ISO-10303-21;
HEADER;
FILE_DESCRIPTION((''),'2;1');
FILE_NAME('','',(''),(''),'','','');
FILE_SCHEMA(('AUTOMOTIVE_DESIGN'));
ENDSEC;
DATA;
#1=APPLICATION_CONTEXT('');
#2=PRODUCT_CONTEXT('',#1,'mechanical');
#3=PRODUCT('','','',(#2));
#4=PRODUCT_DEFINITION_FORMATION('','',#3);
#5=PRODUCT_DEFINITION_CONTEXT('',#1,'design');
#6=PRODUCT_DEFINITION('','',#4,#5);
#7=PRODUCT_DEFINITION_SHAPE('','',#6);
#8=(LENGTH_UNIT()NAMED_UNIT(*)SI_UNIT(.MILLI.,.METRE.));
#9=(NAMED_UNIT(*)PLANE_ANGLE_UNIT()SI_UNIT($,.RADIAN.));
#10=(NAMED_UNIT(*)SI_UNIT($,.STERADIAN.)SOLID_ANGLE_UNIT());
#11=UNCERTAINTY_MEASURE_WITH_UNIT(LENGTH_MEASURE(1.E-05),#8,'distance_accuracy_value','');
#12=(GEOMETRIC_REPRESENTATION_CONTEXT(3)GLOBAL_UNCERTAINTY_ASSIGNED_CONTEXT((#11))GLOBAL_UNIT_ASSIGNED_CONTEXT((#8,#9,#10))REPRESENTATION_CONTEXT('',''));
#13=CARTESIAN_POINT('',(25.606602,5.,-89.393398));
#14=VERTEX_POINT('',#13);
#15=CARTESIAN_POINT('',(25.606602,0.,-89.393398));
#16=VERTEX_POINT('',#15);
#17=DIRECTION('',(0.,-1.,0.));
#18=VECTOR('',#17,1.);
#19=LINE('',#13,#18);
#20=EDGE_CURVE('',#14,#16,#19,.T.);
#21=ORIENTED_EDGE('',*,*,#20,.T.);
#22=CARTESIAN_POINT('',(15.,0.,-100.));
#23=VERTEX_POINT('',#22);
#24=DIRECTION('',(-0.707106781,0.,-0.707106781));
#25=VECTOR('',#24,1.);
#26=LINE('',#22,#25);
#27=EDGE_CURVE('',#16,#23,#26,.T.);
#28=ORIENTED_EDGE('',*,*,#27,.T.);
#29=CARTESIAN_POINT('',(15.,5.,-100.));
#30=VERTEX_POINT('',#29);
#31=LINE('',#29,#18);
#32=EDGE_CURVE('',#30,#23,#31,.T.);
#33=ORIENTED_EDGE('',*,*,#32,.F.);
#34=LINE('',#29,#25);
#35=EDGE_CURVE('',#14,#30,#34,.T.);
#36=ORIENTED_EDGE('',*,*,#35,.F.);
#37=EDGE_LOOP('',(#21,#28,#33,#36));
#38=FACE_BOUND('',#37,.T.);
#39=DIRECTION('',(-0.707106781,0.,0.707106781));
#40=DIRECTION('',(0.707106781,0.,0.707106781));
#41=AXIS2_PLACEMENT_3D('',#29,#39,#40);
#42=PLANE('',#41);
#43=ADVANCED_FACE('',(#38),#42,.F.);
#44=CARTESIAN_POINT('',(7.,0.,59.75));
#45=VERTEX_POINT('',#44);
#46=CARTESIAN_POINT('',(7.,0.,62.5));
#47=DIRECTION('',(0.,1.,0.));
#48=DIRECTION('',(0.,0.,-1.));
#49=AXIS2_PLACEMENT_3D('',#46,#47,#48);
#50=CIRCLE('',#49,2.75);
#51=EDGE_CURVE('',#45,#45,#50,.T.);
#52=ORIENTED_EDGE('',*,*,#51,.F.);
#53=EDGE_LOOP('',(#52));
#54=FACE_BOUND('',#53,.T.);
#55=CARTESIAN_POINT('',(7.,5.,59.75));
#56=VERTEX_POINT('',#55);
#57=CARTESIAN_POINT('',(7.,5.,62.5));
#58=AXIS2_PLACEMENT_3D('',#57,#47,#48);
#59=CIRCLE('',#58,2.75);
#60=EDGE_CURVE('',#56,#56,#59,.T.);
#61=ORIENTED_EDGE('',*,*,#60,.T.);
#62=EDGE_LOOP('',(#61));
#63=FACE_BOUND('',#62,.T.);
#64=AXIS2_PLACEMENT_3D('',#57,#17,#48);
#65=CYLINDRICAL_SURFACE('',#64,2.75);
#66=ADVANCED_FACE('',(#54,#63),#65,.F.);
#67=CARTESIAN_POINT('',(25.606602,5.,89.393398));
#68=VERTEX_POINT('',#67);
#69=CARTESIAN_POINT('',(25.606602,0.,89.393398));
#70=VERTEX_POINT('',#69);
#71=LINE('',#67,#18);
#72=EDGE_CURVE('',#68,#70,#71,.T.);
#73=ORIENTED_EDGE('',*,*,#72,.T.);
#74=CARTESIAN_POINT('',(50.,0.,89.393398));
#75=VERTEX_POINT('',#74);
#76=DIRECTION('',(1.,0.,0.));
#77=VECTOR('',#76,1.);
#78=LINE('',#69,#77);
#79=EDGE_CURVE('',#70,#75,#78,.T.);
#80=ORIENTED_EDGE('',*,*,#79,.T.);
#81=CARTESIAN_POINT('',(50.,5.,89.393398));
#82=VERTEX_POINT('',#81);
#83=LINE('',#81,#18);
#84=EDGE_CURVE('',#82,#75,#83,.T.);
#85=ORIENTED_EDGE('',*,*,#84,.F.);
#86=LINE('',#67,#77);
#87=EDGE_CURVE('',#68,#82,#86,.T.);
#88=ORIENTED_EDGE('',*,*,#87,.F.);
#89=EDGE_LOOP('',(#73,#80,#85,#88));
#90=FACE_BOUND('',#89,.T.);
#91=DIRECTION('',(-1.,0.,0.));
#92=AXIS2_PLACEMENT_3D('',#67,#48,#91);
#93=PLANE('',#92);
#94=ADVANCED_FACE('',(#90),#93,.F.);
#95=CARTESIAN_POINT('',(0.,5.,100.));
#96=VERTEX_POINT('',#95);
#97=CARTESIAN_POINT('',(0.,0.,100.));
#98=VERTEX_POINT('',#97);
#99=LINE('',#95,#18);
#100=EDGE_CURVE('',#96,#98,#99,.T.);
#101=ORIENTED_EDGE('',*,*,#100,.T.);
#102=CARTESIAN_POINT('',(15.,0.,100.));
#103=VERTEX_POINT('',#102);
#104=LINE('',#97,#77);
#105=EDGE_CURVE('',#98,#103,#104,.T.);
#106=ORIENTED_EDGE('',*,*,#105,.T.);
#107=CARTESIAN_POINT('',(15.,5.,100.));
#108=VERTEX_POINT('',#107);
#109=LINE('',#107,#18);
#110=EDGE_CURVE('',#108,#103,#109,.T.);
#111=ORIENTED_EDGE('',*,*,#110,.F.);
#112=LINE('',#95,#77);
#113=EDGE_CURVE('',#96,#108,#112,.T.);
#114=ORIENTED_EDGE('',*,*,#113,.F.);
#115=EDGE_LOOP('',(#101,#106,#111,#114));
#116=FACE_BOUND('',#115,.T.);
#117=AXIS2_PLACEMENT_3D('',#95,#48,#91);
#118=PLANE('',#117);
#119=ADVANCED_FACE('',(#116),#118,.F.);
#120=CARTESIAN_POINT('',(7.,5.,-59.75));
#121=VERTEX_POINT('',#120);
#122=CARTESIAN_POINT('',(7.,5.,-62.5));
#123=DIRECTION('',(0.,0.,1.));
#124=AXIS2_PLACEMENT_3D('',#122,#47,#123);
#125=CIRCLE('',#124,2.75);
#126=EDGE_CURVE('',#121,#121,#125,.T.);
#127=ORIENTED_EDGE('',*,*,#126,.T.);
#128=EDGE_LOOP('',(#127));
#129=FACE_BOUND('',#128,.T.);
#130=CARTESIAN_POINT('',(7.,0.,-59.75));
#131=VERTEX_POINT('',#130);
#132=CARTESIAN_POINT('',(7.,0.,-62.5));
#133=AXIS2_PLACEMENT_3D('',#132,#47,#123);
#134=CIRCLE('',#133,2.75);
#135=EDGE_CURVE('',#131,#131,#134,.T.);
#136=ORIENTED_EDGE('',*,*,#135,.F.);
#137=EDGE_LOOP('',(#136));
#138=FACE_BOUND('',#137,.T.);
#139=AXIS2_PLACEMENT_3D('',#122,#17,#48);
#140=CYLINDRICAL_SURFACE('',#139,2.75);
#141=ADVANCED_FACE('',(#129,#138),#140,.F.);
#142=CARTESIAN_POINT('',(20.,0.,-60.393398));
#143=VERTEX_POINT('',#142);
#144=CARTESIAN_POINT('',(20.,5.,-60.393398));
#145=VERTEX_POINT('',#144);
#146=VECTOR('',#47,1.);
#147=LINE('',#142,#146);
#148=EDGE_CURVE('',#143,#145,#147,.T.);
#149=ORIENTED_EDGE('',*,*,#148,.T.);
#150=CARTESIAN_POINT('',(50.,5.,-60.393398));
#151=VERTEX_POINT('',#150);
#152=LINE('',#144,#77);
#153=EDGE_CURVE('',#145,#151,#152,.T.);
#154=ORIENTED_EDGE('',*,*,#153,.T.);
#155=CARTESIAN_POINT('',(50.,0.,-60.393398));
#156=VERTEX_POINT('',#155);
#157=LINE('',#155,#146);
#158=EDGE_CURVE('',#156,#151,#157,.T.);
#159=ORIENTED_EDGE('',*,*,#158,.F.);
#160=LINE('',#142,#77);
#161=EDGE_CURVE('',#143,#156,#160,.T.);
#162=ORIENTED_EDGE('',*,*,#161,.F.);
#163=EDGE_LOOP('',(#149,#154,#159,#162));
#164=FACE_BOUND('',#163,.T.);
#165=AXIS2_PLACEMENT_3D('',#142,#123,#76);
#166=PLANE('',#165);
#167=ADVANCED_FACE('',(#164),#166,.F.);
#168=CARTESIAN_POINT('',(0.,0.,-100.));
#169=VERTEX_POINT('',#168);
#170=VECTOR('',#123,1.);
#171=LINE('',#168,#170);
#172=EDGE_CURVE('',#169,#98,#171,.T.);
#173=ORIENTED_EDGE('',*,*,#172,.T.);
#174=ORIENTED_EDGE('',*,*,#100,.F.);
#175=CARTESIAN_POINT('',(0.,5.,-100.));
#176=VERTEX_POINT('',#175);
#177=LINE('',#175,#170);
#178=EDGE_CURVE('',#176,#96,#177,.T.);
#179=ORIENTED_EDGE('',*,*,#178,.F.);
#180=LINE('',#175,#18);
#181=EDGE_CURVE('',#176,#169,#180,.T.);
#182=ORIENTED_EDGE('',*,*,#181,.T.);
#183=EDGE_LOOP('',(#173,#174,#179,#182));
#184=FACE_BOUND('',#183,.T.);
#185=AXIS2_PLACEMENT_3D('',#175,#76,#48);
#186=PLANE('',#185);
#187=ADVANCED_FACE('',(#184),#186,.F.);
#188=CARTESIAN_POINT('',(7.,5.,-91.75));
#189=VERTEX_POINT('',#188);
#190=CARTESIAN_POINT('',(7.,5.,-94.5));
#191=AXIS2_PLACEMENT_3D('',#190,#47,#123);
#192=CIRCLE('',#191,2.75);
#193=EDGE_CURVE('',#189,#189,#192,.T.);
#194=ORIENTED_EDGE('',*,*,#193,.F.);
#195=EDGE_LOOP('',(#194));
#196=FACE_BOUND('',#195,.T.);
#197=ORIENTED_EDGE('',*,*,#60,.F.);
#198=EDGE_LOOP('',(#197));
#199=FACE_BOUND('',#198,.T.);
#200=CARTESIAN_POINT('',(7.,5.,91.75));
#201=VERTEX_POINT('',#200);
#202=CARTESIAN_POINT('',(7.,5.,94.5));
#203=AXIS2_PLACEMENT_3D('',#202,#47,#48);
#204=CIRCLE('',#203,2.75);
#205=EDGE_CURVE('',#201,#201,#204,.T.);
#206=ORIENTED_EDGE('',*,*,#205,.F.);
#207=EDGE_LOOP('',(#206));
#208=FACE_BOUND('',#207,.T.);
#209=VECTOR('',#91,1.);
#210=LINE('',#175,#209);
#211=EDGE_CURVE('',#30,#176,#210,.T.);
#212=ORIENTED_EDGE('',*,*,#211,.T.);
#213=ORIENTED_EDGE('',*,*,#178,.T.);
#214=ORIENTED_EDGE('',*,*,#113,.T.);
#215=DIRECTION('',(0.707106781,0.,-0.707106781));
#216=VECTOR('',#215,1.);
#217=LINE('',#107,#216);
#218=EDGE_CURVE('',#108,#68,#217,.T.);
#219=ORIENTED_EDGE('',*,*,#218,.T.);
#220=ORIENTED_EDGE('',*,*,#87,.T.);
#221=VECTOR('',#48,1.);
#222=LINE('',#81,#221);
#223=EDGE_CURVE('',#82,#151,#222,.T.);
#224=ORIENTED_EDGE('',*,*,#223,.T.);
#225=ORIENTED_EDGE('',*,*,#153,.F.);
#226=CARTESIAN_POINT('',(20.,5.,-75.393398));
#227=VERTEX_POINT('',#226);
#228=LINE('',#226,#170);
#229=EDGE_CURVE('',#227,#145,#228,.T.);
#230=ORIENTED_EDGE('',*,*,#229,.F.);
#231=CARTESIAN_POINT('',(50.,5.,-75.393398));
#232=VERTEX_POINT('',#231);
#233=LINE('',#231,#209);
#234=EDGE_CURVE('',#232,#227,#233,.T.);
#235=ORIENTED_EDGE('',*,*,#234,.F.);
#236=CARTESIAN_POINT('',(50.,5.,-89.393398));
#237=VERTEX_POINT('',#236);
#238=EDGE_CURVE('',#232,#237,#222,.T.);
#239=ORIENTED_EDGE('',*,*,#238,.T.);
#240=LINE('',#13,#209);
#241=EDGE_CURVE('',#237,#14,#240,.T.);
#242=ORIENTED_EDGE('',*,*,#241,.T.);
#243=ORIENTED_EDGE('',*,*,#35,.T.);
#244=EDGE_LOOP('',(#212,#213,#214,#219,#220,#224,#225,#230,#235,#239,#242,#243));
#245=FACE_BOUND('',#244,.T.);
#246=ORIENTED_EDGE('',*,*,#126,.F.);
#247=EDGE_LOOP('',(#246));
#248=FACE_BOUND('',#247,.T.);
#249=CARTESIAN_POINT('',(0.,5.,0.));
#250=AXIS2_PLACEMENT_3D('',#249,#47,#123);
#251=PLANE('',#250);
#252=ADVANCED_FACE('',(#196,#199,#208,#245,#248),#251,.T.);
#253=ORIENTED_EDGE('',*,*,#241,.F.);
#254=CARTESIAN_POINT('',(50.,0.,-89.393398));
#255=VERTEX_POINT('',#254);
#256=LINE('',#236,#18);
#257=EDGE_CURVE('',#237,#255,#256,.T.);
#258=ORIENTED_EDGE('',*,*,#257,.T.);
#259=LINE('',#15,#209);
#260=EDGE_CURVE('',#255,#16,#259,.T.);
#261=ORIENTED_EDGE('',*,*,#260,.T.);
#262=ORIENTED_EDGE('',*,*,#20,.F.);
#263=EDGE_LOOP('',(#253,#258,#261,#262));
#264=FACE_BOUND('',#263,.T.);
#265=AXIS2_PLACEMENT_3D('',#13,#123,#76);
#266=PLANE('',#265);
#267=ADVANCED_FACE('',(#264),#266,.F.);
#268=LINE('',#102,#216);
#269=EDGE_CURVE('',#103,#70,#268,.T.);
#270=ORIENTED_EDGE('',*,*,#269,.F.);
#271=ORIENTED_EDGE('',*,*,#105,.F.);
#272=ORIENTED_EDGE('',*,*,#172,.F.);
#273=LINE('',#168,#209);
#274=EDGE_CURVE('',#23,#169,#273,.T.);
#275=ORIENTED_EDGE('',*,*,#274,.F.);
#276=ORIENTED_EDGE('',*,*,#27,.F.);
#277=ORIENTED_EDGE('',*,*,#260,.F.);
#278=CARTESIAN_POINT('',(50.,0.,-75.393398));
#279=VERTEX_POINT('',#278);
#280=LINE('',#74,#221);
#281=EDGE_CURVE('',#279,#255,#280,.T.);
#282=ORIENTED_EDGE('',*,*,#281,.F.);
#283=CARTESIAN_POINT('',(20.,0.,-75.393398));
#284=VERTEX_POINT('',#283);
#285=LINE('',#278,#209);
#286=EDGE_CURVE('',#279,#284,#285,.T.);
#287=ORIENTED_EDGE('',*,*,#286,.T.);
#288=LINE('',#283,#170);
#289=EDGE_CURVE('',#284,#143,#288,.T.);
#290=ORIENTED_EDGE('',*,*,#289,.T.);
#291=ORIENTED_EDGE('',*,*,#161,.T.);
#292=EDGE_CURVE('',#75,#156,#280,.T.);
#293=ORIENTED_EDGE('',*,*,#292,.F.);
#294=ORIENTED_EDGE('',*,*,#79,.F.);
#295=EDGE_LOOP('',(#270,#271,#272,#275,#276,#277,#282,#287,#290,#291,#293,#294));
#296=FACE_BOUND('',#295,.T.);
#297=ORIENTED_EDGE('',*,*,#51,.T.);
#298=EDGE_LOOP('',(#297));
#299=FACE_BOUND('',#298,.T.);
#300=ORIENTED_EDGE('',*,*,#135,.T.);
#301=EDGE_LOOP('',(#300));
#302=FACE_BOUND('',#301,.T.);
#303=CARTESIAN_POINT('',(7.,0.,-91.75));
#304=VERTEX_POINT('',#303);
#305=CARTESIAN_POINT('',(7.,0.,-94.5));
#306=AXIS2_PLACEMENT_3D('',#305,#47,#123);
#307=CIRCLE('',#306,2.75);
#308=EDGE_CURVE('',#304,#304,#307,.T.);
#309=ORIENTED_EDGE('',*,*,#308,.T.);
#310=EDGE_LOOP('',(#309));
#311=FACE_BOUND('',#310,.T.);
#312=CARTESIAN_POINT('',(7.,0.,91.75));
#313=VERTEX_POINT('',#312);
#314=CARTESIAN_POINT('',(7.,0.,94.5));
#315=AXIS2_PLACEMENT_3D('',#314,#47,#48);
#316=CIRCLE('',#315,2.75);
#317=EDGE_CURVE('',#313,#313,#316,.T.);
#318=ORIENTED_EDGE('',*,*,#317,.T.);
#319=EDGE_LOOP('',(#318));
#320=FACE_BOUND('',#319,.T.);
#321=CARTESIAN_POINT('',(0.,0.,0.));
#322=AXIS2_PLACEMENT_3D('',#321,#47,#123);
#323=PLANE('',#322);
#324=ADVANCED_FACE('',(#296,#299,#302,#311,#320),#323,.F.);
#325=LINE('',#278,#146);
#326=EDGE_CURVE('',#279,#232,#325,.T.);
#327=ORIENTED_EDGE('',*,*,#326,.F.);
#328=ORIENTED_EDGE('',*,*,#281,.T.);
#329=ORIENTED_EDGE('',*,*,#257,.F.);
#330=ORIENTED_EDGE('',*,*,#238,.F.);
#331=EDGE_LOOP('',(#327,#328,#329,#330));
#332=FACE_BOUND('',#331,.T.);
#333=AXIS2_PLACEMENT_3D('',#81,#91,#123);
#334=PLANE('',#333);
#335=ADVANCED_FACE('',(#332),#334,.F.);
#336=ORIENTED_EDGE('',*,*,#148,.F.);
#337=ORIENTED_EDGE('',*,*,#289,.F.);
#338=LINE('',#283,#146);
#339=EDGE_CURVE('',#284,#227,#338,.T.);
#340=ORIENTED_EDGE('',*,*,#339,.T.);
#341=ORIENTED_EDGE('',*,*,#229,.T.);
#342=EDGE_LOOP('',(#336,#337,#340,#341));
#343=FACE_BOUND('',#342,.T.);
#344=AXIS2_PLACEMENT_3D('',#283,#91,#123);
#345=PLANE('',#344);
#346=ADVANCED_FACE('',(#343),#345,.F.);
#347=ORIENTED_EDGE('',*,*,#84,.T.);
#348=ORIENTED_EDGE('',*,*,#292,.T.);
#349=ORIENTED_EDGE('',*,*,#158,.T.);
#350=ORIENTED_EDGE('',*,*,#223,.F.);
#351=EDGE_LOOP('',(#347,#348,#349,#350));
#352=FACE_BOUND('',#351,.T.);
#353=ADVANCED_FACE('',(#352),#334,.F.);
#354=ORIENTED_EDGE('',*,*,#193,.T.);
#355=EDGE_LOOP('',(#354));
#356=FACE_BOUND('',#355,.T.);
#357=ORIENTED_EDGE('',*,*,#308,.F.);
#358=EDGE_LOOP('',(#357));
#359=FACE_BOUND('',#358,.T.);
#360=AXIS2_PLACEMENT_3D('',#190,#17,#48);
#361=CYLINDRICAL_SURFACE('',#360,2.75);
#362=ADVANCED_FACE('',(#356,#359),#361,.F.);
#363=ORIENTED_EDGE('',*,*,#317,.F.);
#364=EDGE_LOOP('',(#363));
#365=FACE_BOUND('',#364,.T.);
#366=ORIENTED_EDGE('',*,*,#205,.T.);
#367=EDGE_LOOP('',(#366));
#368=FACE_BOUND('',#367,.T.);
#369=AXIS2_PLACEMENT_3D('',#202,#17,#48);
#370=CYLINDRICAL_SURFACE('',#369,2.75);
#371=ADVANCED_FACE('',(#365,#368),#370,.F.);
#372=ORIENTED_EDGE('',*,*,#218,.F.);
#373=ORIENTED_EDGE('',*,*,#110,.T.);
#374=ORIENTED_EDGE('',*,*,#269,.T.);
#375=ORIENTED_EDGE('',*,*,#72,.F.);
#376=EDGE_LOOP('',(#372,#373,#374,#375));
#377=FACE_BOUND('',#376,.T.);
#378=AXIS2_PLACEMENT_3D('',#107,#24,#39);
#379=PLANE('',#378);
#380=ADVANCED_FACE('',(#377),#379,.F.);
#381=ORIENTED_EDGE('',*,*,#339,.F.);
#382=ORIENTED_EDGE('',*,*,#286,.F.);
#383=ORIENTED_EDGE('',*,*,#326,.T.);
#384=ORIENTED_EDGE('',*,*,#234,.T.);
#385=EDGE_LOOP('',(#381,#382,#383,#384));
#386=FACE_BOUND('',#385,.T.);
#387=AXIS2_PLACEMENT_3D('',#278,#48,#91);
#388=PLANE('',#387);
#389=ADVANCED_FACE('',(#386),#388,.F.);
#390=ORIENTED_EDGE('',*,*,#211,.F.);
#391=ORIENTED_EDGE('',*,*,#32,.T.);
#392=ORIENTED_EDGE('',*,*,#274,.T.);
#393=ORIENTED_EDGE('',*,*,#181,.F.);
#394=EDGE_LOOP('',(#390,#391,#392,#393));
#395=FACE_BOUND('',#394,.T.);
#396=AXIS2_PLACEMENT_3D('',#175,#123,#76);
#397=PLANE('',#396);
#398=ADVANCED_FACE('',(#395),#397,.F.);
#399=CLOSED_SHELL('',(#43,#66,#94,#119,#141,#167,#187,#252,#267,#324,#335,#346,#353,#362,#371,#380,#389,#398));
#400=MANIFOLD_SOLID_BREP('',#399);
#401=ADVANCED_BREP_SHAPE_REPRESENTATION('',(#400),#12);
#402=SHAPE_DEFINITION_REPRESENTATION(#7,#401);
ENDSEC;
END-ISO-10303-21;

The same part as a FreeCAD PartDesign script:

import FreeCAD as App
import Part
import Sketcher
from FreeCAD import Vector


def add_polygon(sketch, points):
    """Adds a closed chain of lines whose ends are joined by coincident constraints."""
    first, n = sketch.GeometryCount, len(points)
    for a, b in zip(points, points[1:] + points[:1]):
        sketch.addGeometry(Part.LineSegment(App.Vector(*a, 0), App.Vector(*b, 0)), False)
    for i in range(n):
        sketch.addConstraint(Sketcher.Constraint("Coincident", first + i, 2, first + (i + 1) % n, 1))

doc = App.newDocument("Part")
body = doc.addObject("PartDesign::Body", "Body")

sketch1 = doc.addObject("Sketcher::SketchObject", "Sketch")
body.addObject(sketch1)
sketch1.AttachmentSupport = (doc.XZ_Plane, [""])
sketch1.MapMode = "FlatFace"
add_polygon(sketch1, [(15, -100), (0, -100), (0, 100), (15, 100), (25.606602, 89.393398), (50, 89.393398), (50, -89.393398), (25.606602, -89.393398)])
sketch1.addGeometry(Part.Circle(Vector(7, 94.5, 0), Vector(0, 0, 1), 2.75), False)
sketch1.addGeometry(Part.Circle(Vector(7, 62.5, 0), Vector(0, 0, 1), 2.75), False)
sketch1.addGeometry(Part.Circle(Vector(7, -62.5, 0), Vector(0, 0, 1), 2.75), False)
sketch1.addGeometry(Part.Circle(Vector(7, -94.5, 0), Vector(0, 0, 1), 2.75), False)
sketch1.addConstraint(Sketcher.Constraint("Horizontal", 0))
sketch1.addConstraint(Sketcher.Constraint("Vertical", 1))
sketch1.addConstraint(Sketcher.Constraint("Horizontal", 2))
sketch1.addConstraint(Sketcher.Constraint("Horizontal", 4))
sketch1.addConstraint(Sketcher.Constraint("Vertical", 5))
sketch1.addConstraint(Sketcher.Constraint("Horizontal", 6))
sketch1.addConstraint(Sketcher.Constraint("Equal", 8, 9))
sketch1.addConstraint(Sketcher.Constraint("Equal", 9, 10))
sketch1.addConstraint(Sketcher.Constraint("Equal", 10, 11))
sketch1.addConstraint(Sketcher.Constraint("Symmetric", 0, 2, 1, 2, -1, 1))
sketch1.addConstraint(Sketcher.Constraint("Symmetric", 9, 3, 10, 3, -1))
sketch1.addConstraint(Sketcher.Constraint("Symmetric", 8, 3, 11, 3, -1))
sketch1.addConstraint(Sketcher.Constraint("Symmetric", 3, 2, 6, 2, -1))
sketch1.addConstraint(Sketcher.Constraint("Perpendicular", 3, 7))
sketch1.addConstraint(Sketcher.Constraint("Vertical", 8, 3, 9, 3))
sketch1.addConstraint(Sketcher.Constraint("Vertical", 2, 2, 7, 2))
sketch1.addConstraint(Sketcher.Constraint("Diameter", 8, 5.5))
sketch1.addConstraint(Sketcher.Constraint("DistanceX", 0, 2, 0, 1, 15.0))
sketch1.addConstraint(Sketcher.Constraint("DistanceY", 1, 1, 1, 2, 200.0))
sketch1.addConstraint(Sketcher.Constraint("Distance", 3, 15.0))
sketch1.addConstraint(Sketcher.Constraint("DistanceX", -1, 1, 8, 3, 7.0))
sketch1.addConstraint(Sketcher.Constraint("DistanceX", -1, 1, 4, 2, 50.0))
sketch1.addConstraint(Sketcher.Constraint("DistanceY", 9, 3, 8, 3, 32.0))
sketch1.addConstraint(Sketcher.Constraint("DistanceY", 10, 3, 9, 3, 125.0))
pad1 = doc.addObject("PartDesign::Pad", "Pad")
body.addObject(pad1)
pad1.Profile = sketch1
pad1.Length = 5
pad1.Reversed = True

sketch2 = doc.addObject("Sketcher::SketchObject", "Sketch001")
body.addObject(sketch2)
sketch2.AttachmentSupport = (doc.XZ_Plane, [""])
sketch2.MapMode = "FlatFace"
sketch2.AttachmentOffset = App.Placement(Vector(0, 0, -5), App.Rotation())
add_polygon(sketch2, [(20, -75.393398), (20, -60.393398), (50, -60.393398), (50, -75.393398)])
sketch2.addConstraint(Sketcher.Constraint("Vertical", 0))
sketch2.addConstraint(Sketcher.Constraint("Horizontal", 1))
sketch2.addConstraint(Sketcher.Constraint("Vertical", 2))
sketch2.addConstraint(Sketcher.Constraint("Horizontal", 3))
sketch2.addConstraint(Sketcher.Constraint("DistanceX", 1, 1, 1, 2, 30.0))
sketch2.addConstraint(Sketcher.Constraint("DistanceY", 0, 1, 0, 2, 15.0))
sketch2.addConstraint(Sketcher.Constraint("DistanceX", -1, 1, 0, 2, 20.0))
sketch2.addConstraint(Sketcher.Constraint("DistanceY", 0, 2, -1, 1, 60.393398))
pocket1 = doc.addObject("PartDesign::Pocket", "Pocket")
body.addObject(pocket1)
pocket1.Profile = sketch2
pocket1.Type = "ThroughAll"
pocket1.Reversed = True

doc.recompute()
